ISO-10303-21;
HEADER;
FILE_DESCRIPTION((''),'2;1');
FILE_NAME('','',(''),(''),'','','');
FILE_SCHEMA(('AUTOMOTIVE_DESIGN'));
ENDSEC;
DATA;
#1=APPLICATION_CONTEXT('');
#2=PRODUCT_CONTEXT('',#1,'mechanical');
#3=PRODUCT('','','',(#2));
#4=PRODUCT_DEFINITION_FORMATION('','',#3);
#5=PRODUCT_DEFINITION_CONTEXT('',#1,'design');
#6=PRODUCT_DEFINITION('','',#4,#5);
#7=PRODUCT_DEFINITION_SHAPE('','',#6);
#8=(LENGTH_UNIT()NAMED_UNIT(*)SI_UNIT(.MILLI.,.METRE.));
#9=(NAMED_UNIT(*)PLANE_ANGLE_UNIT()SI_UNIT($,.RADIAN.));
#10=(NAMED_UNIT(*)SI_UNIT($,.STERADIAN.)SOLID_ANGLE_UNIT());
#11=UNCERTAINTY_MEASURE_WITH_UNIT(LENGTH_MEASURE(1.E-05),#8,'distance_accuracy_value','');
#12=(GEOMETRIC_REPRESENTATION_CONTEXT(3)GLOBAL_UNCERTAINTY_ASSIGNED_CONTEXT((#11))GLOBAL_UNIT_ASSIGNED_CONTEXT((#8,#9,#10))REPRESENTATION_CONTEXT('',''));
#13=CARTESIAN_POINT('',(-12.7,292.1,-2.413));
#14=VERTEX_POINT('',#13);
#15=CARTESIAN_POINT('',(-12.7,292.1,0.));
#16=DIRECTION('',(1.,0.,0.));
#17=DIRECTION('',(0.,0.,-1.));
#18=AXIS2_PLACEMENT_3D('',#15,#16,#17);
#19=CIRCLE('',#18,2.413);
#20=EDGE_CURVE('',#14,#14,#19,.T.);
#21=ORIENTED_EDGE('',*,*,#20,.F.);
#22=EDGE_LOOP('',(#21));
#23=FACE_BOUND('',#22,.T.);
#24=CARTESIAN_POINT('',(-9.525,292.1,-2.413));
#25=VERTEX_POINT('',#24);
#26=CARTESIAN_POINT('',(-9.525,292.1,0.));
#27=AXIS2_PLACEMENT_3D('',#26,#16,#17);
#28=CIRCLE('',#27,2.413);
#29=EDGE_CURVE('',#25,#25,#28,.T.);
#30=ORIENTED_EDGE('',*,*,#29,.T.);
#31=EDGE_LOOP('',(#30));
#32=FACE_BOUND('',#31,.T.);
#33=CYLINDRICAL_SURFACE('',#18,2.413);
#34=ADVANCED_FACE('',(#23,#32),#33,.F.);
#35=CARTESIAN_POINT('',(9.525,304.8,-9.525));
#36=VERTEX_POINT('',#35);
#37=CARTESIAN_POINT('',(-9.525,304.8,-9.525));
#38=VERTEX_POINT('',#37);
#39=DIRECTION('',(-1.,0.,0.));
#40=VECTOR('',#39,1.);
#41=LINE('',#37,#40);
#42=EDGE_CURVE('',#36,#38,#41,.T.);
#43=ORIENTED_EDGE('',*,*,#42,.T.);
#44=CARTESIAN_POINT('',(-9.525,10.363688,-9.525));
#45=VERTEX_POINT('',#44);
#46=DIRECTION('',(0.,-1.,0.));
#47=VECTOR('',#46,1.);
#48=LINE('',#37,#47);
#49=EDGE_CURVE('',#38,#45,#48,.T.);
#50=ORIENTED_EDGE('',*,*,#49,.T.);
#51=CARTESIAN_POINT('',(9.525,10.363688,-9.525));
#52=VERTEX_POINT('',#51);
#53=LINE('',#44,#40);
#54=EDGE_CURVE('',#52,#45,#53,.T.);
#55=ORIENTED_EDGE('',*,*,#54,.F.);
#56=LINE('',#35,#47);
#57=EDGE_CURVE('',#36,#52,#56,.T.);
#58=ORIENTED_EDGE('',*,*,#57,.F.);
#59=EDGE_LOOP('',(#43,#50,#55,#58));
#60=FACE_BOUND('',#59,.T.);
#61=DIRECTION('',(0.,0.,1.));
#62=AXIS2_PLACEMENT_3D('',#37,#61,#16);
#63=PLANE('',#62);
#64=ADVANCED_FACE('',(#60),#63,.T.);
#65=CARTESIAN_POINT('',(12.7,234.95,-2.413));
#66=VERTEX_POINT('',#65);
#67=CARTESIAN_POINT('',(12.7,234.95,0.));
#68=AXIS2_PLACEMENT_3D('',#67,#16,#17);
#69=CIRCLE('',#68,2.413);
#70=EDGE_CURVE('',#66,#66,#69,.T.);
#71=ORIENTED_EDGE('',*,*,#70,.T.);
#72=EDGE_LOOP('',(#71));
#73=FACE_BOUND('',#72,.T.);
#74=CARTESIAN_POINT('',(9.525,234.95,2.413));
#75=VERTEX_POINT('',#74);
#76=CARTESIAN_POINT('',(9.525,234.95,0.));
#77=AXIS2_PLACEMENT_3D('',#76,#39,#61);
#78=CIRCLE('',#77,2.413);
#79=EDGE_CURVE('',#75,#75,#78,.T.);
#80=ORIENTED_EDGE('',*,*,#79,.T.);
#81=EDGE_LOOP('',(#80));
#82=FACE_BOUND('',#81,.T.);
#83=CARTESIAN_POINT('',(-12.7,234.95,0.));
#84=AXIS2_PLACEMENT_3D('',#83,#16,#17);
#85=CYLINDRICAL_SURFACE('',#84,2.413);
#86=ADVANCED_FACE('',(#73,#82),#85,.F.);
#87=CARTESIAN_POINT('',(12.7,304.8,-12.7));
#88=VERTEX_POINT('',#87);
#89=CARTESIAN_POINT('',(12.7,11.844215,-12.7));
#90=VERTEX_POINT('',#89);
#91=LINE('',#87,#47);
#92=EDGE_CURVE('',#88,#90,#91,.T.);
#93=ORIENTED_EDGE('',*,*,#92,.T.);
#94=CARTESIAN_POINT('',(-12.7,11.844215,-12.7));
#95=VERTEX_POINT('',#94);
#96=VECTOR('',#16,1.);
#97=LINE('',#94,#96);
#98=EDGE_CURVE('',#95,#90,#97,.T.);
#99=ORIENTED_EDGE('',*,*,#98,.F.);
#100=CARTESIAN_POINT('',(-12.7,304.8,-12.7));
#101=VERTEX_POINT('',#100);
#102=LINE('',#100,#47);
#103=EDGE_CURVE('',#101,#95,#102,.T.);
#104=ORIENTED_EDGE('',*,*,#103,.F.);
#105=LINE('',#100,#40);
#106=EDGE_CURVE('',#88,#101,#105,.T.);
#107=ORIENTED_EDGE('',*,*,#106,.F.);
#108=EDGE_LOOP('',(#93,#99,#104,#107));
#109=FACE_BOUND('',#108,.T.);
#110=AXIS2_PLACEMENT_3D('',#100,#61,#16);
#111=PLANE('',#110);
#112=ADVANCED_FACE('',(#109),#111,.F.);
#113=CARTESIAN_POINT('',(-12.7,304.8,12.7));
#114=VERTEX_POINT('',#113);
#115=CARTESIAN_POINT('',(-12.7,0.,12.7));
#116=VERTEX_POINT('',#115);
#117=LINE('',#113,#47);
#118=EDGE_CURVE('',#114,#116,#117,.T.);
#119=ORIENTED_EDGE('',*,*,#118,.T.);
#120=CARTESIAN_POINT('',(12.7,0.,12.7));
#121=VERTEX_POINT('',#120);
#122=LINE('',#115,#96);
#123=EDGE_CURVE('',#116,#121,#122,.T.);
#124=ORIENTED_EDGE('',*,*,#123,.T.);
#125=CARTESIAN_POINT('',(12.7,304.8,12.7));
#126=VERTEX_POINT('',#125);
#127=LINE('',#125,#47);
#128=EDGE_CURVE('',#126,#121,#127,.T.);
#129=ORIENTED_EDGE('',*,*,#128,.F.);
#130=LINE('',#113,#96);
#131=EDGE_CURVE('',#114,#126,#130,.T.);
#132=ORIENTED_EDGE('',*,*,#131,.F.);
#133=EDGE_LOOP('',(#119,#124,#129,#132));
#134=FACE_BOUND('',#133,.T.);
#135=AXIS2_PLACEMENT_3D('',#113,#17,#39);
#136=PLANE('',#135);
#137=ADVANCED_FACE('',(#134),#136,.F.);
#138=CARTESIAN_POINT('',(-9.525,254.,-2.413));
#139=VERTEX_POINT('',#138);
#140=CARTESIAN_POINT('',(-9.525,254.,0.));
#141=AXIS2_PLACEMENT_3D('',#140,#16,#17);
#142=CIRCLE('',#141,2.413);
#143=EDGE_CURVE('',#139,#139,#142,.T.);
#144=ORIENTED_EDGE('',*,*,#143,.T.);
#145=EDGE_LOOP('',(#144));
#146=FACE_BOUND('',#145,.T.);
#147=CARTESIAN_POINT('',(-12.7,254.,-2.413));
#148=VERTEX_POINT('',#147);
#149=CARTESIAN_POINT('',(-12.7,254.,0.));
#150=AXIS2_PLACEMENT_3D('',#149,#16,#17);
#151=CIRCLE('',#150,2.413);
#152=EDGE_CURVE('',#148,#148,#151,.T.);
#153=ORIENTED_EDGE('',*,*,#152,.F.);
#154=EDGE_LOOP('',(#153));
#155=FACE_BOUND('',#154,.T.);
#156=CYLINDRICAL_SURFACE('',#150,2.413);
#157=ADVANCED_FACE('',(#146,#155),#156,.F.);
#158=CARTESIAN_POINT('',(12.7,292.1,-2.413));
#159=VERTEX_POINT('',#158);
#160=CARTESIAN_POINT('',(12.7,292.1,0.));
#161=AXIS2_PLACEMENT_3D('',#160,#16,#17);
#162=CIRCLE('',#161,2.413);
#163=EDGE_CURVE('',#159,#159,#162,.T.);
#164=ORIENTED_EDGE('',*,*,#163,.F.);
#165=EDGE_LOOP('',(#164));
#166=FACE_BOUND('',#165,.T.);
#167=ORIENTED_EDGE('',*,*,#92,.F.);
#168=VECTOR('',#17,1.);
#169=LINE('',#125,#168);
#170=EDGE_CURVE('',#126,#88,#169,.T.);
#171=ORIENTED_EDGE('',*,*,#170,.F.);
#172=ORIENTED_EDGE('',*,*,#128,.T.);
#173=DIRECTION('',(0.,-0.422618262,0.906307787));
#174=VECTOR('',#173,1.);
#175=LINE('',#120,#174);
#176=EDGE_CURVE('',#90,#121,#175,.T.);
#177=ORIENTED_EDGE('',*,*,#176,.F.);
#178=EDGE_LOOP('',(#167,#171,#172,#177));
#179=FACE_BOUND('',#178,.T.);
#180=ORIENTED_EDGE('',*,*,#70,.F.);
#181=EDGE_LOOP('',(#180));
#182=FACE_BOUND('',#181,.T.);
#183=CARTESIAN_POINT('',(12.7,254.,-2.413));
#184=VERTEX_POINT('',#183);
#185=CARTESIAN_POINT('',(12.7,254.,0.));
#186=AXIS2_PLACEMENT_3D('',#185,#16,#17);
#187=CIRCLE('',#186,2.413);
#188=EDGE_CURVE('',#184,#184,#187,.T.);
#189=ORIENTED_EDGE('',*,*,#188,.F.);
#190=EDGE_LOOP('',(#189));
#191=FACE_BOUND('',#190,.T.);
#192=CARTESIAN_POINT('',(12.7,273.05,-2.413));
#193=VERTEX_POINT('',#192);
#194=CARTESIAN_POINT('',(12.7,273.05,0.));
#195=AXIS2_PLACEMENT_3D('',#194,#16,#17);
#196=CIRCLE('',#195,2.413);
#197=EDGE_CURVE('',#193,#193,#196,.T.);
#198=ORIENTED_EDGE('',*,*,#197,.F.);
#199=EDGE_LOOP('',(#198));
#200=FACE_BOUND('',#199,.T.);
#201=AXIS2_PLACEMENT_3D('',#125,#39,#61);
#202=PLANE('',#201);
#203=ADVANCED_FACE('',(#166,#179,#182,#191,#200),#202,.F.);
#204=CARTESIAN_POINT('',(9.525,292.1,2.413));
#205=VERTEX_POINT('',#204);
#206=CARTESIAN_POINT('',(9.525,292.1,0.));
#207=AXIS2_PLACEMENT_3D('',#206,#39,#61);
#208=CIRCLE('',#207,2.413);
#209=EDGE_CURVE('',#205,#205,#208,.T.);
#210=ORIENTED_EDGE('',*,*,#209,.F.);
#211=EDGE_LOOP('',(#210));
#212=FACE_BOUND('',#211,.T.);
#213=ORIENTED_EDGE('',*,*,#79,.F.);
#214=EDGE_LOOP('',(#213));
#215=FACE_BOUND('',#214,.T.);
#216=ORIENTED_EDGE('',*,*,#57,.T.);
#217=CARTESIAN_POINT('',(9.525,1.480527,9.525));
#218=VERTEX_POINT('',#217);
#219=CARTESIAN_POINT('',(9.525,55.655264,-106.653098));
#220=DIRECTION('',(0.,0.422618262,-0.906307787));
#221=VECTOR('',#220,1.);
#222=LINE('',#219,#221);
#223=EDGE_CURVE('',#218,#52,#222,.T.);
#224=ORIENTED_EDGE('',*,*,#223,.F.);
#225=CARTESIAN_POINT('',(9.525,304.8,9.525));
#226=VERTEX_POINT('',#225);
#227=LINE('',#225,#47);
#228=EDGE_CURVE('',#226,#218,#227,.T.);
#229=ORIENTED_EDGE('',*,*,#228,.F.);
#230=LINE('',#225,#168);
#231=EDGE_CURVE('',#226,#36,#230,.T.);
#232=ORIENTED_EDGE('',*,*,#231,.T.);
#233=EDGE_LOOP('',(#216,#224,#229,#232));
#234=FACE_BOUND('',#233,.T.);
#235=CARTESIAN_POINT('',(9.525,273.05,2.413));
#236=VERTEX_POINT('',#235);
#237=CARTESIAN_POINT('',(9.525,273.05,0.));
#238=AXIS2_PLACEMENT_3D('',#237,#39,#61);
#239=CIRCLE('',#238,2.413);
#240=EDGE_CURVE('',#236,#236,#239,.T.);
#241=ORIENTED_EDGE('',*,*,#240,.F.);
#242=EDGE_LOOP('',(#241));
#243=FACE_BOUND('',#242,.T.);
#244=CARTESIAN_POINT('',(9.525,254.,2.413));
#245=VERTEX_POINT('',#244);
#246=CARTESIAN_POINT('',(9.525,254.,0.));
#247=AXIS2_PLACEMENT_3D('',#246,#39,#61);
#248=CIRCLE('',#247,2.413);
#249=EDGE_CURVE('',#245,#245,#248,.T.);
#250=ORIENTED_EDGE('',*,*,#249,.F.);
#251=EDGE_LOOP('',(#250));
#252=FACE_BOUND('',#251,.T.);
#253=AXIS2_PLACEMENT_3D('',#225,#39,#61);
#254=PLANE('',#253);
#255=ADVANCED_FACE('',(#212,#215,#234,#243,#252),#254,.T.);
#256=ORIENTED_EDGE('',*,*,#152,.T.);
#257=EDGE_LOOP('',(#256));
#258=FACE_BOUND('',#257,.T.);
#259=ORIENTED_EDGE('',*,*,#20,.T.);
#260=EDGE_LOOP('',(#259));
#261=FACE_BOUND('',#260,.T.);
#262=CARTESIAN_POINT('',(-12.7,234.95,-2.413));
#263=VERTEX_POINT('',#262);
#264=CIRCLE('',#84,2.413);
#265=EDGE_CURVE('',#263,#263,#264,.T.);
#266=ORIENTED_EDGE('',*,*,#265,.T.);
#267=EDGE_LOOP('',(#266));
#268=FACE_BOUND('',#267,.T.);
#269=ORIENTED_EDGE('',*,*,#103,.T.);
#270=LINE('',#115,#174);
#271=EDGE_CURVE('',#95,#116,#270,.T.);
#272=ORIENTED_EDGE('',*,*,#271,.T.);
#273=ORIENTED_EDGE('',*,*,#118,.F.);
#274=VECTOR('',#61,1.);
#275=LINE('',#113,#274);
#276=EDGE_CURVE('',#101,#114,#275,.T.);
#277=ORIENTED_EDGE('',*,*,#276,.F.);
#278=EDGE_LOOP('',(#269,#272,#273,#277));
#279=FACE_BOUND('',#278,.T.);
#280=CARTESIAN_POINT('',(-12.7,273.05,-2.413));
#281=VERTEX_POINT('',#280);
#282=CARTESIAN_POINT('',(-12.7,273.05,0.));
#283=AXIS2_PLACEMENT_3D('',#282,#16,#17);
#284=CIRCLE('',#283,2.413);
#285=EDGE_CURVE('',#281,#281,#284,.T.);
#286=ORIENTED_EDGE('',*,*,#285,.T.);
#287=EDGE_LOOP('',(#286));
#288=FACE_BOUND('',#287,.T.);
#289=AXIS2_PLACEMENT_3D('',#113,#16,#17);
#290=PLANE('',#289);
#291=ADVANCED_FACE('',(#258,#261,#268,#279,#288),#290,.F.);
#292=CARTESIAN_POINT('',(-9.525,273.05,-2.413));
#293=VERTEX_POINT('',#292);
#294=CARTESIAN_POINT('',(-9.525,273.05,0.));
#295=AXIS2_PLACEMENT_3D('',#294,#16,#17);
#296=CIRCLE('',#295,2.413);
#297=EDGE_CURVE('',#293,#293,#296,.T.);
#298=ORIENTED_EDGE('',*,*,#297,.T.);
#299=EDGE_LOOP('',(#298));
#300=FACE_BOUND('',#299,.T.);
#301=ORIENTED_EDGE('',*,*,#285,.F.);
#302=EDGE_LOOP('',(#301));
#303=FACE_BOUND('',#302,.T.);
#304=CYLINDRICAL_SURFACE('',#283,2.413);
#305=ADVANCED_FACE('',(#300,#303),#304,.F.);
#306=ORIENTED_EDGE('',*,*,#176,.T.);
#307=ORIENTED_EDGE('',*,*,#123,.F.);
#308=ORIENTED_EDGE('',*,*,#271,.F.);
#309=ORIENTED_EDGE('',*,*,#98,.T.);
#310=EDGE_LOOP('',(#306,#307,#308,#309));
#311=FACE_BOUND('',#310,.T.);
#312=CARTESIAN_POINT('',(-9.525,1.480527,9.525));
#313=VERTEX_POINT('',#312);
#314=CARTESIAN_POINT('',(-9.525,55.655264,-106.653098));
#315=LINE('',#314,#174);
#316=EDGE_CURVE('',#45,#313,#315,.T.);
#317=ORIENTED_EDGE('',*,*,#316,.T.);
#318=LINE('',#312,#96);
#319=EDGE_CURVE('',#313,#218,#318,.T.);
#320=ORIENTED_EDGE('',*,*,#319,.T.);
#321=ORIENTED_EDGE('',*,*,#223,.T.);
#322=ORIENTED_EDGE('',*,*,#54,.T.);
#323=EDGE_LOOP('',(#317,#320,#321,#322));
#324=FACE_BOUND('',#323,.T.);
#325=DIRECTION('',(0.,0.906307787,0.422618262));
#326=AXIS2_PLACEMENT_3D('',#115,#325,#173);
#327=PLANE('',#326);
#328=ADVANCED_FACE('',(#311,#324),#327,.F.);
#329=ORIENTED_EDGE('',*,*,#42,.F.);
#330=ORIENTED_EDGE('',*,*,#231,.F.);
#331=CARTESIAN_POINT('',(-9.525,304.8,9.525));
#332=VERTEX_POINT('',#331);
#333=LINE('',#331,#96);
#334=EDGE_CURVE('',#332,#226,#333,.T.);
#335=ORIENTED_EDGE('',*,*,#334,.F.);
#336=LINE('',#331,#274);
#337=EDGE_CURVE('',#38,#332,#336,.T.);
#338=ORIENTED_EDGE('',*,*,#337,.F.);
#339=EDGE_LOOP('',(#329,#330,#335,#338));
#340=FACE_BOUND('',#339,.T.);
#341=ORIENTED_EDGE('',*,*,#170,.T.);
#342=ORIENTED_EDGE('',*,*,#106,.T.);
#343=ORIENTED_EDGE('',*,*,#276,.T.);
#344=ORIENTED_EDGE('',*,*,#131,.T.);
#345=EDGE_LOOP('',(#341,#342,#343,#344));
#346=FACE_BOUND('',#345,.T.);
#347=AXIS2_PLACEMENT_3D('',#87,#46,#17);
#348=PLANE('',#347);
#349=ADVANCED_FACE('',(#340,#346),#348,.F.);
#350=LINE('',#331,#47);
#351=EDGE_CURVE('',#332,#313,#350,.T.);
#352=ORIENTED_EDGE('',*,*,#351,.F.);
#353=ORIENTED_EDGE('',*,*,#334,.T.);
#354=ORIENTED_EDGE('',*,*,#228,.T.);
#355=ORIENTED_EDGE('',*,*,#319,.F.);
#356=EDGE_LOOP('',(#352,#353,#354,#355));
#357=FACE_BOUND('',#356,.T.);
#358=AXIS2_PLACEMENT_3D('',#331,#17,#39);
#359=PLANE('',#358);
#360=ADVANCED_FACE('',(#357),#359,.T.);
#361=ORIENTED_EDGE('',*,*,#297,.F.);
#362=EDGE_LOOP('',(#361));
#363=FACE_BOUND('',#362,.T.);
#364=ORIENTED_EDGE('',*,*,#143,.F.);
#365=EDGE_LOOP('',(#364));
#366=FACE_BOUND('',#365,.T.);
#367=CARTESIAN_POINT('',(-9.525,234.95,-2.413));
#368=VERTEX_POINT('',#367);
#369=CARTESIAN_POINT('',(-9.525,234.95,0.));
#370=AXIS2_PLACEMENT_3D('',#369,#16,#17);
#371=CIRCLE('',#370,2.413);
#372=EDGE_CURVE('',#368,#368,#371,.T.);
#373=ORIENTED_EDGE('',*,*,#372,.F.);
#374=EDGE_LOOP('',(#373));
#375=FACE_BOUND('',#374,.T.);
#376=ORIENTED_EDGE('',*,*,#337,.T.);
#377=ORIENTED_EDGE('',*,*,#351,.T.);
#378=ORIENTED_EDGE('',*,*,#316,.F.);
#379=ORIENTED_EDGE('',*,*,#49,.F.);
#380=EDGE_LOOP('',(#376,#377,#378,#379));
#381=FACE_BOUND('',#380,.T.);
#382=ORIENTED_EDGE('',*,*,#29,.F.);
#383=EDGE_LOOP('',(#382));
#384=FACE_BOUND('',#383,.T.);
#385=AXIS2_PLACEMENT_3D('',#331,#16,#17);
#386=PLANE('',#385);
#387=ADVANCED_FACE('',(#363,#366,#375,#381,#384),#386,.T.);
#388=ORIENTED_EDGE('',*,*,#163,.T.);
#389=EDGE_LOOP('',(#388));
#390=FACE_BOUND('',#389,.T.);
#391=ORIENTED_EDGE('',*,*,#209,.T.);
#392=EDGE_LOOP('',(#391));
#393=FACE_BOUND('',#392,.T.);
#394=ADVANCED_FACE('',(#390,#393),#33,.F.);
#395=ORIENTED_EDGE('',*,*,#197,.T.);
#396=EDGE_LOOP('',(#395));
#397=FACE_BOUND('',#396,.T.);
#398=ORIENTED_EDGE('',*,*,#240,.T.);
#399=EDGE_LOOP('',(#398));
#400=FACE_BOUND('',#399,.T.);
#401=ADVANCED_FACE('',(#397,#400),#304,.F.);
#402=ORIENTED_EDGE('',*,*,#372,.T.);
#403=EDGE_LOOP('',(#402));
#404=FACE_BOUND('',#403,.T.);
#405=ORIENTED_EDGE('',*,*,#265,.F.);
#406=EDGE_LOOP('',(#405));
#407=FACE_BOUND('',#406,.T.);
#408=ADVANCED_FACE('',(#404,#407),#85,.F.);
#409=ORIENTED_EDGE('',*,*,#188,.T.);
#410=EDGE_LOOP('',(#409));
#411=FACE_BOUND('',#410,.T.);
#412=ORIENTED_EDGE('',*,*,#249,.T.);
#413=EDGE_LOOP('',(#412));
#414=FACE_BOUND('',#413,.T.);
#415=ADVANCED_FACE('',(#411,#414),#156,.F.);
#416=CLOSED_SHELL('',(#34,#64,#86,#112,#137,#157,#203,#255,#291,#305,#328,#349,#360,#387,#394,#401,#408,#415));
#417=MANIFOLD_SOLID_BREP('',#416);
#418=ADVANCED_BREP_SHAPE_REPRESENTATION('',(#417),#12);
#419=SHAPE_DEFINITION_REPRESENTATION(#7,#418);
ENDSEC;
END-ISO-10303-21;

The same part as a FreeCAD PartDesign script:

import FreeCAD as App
import Part
import Sketcher

V = App.Vector
Q = App.Units.Quantity


def add_polygon(sketch, points):
    """Adds a closed chain of lines whose ends are joined by coincident constraints."""
    first, n = sketch.GeometryCount, len(points)
    for a, b in zip(points, points[1:] + points[:1]):
        sketch.addGeometry(Part.LineSegment(App.Vector(*a, 0), App.Vector(*b, 0)), False)
    for i in range(n):
        sketch.addConstraint(Sketcher.Constraint("Coincident", first + i, 2, first + (i + 1) % n, 1))

doc = App.newDocument("Part")
body = doc.addObject("PartDesign::Body", "Body")

# Sketch on XZ plane
sketch1 = body.newObject("Sketcher::SketchObject", "Sketch")
sketch1.AttachmentSupport = (doc.getObject("XZ_Plane"), [""])
sketch1.MapMode = "FlatFace"
add_polygon(sketch1, [(-12.7, -12.7), (-12.7, 12.7), (12.7, 12.7), (12.7, -12.7)])  # lines 0-3
add_polygon(sketch1, [(9.525, 9.525), (-9.525, 9.525), (-9.525, -9.525), (9.525, -9.525)])  # lines 4-7
sketch1.addConstraint([
    Sketcher.Constraint("Vertical", 0),
    Sketcher.Constraint("Horizontal", 1),
    Sketcher.Constraint("Vertical", 2),
    Sketcher.Constraint("Horizontal", 3),
    Sketcher.Constraint("Horizontal", 4),
    Sketcher.Constraint("Vertical", 5),
    Sketcher.Constraint("Horizontal", 6),
    Sketcher.Constraint("Vertical", 7),
    Sketcher.Constraint("Symmetric", 0, 2, 2, 2, -1, 1),
    Sketcher.Constraint("Symmetric", 4, 2, 6, 2, -1, 1),
    Sketcher.Constraint("Equal", 3, 0),
    Sketcher.Constraint("Equal", 6, 5),
    Sketcher.Constraint("DistanceX", 1, 1, 1, 2, Q("1 in")),
    Sketcher.Constraint("DistanceX", 4, 2, 4, 1, Q("0.75 in")),
])
pad1 = body.newObject("PartDesign::Pad", "Pad")
pad1.Profile = sketch1
pad1.Length = Q("12 in")
pad1.Reversed = True

# Sketch on YZ plane
sketch2 = body.newObject("Sketcher::SketchObject", "Sketch001")
sketch2.AttachmentSupport = (doc.getObject("YZ_Plane"), [""])
sketch2.MapMode = "FlatFace"
sketch2.AttachmentOffset = App.Placement(V(0, 0, 0.5 * 25.4), App.Rotation())
sketch2.addGeometry(Part.Circle(V(292.1, 0, 0), V(0, 0, 1), 2.413), False)  # 0
sketch2.addGeometry(Part.Circle(V(273.05, 0, 0), V(0, 0, 1), 2.413), False)  # 1
sketch2.addGeometry(Part.Circle(V(254, 0, 0), V(0, 0, 1), 2.413), False)  # 2
sketch2.addGeometry(Part.Circle(V(234.95, 0, 0), V(0, 0, 1), 2.413), False)  # 3
add_polygon(sketch2, [(11.844215, -12.7), (0, 12.7), (0, -12.7)])  # lines 4-6
sketch2.addConstraint([
    Sketcher.Constraint("Vertical", 5),
    Sketcher.Constraint("Horizontal", 6),
    Sketcher.Constraint("Equal", 0, 1),
    Sketcher.Constraint("Equal", 1, 2),
    Sketcher.Constraint("Equal", 2, 3),
    Sketcher.Constraint("Symmetric", 4, 2, 5, 2, -1, 1),
    Sketcher.Constraint("PointOnObject", 0, 3, -1),
    Sketcher.Constraint("PointOnObject", 1, 3, -1),
    Sketcher.Constraint("PointOnObject", 2, 3, -1),
    Sketcher.Constraint("PointOnObject", 3, 3, -1),
    Sketcher.Constraint("Diameter", 0, Q("0.19 in")),
    Sketcher.Constraint("DistanceY", 5, 2, 5, 1, Q("1 in")),
    Sketcher.Constraint("DistanceX", -1, 1, 2, 3, Q("10 in")),
    Sketcher.Constraint("Angle", 4, Q("115 deg")),
    Sketcher.Constraint("DistanceX", -1, 1, 0, 3, Q("11.5 in")),
    Sketcher.Constraint("DistanceX", 3, 3, 1, 3, Q("1.5 in")),
    Sketcher.Constraint("DistanceX", -1, 1, 1, 3, Q("10.75 in")),
])
pocket1 = body.newObject("PartDesign::Pocket", "Pocket")
pocket1.Profile = sketch2
pocket1.Length = Q("1 in")

doc.recompute()
